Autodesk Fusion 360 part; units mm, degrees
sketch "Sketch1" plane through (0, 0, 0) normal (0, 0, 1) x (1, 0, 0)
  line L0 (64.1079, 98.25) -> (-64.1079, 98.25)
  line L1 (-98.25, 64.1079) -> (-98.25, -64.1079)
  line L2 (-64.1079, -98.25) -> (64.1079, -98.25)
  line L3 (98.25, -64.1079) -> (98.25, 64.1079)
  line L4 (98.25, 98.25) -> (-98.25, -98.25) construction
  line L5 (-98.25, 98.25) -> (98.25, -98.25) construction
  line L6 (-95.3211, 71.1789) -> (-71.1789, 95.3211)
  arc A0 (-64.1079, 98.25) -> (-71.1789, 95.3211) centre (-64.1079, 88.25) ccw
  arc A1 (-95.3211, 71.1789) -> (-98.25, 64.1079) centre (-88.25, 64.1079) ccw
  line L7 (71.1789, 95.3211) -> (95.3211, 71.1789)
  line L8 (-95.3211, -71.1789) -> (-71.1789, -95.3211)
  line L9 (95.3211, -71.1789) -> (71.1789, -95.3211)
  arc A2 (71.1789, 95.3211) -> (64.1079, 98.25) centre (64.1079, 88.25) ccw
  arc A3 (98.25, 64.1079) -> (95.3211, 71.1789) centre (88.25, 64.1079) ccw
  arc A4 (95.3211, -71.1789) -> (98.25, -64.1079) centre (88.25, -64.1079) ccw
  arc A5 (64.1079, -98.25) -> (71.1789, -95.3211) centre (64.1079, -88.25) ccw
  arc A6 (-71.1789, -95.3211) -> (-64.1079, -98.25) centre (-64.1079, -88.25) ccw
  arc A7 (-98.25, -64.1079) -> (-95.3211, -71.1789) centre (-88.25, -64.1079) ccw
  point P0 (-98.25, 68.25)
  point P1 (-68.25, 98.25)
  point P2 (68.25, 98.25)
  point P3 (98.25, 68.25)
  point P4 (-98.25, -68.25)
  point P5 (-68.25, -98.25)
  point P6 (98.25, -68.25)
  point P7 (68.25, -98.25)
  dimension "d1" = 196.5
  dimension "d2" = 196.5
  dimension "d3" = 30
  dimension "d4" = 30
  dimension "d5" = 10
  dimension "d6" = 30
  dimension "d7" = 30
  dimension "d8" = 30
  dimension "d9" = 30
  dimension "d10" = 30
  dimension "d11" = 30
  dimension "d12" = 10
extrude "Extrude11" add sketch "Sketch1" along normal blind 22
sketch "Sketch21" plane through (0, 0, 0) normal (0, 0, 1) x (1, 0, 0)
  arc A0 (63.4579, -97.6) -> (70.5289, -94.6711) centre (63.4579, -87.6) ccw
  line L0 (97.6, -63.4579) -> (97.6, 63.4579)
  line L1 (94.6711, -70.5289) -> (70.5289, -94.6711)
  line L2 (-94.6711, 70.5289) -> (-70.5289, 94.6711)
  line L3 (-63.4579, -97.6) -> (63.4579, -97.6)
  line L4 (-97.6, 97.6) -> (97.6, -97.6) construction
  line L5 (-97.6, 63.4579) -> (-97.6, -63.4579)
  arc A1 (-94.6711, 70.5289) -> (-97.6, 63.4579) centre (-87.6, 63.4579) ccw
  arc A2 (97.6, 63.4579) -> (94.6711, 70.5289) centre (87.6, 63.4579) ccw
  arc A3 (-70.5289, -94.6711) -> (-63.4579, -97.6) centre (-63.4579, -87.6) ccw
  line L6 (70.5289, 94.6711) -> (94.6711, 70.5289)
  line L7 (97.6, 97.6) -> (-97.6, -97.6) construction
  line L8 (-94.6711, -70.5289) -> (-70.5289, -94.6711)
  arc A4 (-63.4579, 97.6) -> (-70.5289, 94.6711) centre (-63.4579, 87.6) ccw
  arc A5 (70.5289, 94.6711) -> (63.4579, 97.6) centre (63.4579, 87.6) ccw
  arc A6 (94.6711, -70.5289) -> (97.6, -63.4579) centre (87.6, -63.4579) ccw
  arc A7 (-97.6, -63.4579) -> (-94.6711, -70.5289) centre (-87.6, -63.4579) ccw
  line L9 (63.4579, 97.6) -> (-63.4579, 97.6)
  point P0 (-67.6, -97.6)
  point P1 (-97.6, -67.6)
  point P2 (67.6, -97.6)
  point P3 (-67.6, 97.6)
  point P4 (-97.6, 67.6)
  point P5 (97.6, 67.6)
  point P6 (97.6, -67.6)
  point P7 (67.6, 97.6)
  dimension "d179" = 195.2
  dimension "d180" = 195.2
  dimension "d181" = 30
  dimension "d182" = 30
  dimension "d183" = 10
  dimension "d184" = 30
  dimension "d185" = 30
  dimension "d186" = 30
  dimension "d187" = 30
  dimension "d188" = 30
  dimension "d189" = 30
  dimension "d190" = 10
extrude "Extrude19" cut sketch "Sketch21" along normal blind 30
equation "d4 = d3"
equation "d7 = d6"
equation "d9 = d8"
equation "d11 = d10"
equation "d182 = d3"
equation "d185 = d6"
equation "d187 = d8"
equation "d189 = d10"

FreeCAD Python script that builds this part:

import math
import FreeCAD as App
import Part
import Sketcher

V = App.Vector

doc = App.newDocument("Part")
body = doc.addObject("PartDesign::Body", "Body")

# Sketch on XY plane
sketch1 = body.newObject("Sketcher::SketchObject", "Sketch")
sketch1.AttachmentSupport = (doc.getObject("XY_Plane"), [""])
sketch1.MapMode = "FlatFace"
sketch1.addGeometry([
    Part.ArcOfCircle(Part.Circle(V(64, 88, 0), V(0, 0, 1), 10), math.radians(45), math.radians(90)),  # 0
    Part.LineSegment(V(64, 98, 0), V(-64, 98, 0)),  # 1
    Part.ArcOfCircle(Part.Circle(V(-64, 88, 0), V(0, 0, 1), 10), math.radians(90), math.radians(135)),  # 2
    Part.LineSegment(V(-71, 95, 0), V(-95, 71, 0)),  # 3
    Part.ArcOfCircle(Part.Circle(V(-88, 64, 0), V(0, 0, 1), 10), math.radians(135), math.radians(180)),  # 4
    Part.LineSegment(V(-98, 64, 0), V(-98, -64, 0)),  # 5
    Part.ArcOfCircle(Part.Circle(V(-88, -64, 0), V(0, 0, 1), 10), math.radians(180), math.radians(225)),  # 6
    Part.LineSegment(V(-95, -71, 0), V(-71, -95, 0)),  # 7
    Part.ArcOfCircle(Part.Circle(V(-64, -88, 0), V(0, 0, 1), 10), math.radians(-135), math.radians(-90)),  # 8
    Part.LineSegment(V(-64, -98, 0), V(64, -98, 0)),  # 9
    Part.ArcOfCircle(Part.Circle(V(64, -88, 0), V(0, 0, 1), 10), math.radians(-90), math.radians(-45)),  # 10
    Part.LineSegment(V(71, -95, 0), V(95, -71, 0)),  # 11
    Part.ArcOfCircle(Part.Circle(V(88, -64, 0), V(0, 0, 1), 10), math.radians(-45), math.radians(0)),  # 12
    Part.LineSegment(V(98, -64, 0), V(98, 64, 0)),  # 13
    Part.ArcOfCircle(Part.Circle(V(88, 64, 0), V(0, 0, 1), 10), math.radians(0), math.radians(45)),  # 14
    Part.LineSegment(V(95, 71, 0), V(71, 95, 0)),  # 15
], False)
sketch1.addConstraint([
    Sketcher.Constraint("Tangent", 0, 2, 1, 1),
    Sketcher.Constraint("Tangent", 1, 2, 2, 1),
    Sketcher.Constraint("Tangent", 2, 2, 3, 1),
    Sketcher.Constraint("Tangent", 3, 2, 4, 1),
    Sketcher.Constraint("Tangent", 4, 2, 5, 1),
    Sketcher.Constraint("Tangent", 5, 2, 6, 1),
    Sketcher.Constraint("Tangent", 6, 2, 7, 1),
    Sketcher.Constraint("Tangent", 7, 2, 8, 1),
    Sketcher.Constraint("Tangent", 8, 2, 9, 1),
    Sketcher.Constraint("Tangent", 9, 2, 10, 1),
    Sketcher.Constraint("Tangent", 10, 2, 11, 1),
    Sketcher.Constraint("Tangent", 11, 2, 12, 1),
    Sketcher.Constraint("Tangent", 12, 2, 13, 1),
    Sketcher.Constraint("Tangent", 13, 2, 14, 1),
    Sketcher.Constraint("Tangent", 14, 2, 15, 1),
    Sketcher.Constraint("Tangent", 15, 2, 0, 1),
    Sketcher.Constraint("Horizontal", 1),
    Sketcher.Constraint("Vertical", 5),
    Sketcher.Constraint("Horizontal", 9),
    Sketcher.Constraint("Vertical", 13),
    Sketcher.Constraint("Equal", 0, 2),
    Sketcher.Constraint("Equal", 2, 4),
    Sketcher.Constraint("Equal", 4, 6),
    Sketcher.Constraint("Equal", 6, 8),
    Sketcher.Constraint("Equal", 8, 10),
    Sketcher.Constraint("Equal", 10, 12),
    Sketcher.Constraint("Equal", 12, 14),
    Sketcher.Constraint("Symmetric", 0, 3, 8, 3, -1, 1),
    Sketcher.Constraint("Symmetric", 4, 3, 12, 3, -1, 1),
    Sketcher.Constraint("Symmetric", 7, 2, 10, 2, -2),
    Sketcher.Constraint("Symmetric", 3, 2, 14, 2, -2),
    Sketcher.Constraint("Perpendicular", 3, 7),
    Sketcher.Constraint("Equal", 9, 5),
    Sketcher.Constraint("Radius", 0, 10.0),
    Sketcher.Constraint("DistanceY", 8, 3, 2, 3, 176.5),
    Sketcher.Constraint("DistanceX", 1, 2, 1, 1, 128.2158),
])
pad1 = body.newObject("PartDesign::Pad", "Pad")
pad1.Profile = sketch1
pad1.Length = 22

# Sketch on XY plane
sketch2 = body.newObject("Sketcher::SketchObject", "Sketch001")
sketch2.AttachmentSupport = (doc.getObject("XY_Plane"), [""])
sketch2.MapMode = "FlatFace"
sketch2.addGeometry([
    Part.LineSegment(V(-63, -98, 0), V(63, -98, 0)),  # 0
    Part.ArcOfCircle(Part.Circle(V(63, -88, 0), V(0, 0, 1), 10), math.radians(-90), math.radians(-45)),  # 1
    Part.LineSegment(V(71, -95, 0), V(95, -71, 0)),  # 2
    Part.ArcOfCircle(Part.Circle(V(88, -63, 0), V(0, 0, 1), 10), math.radians(-45), math.radians(0)),  # 3
    Part.LineSegment(V(98, -63, 0), V(98, 63, 0)),  # 4
    Part.ArcOfCircle(Part.Circle(V(88, 63, 0), V(0, 0, 1), 10), math.radians(0), math.radians(45)),  # 5
    Part.LineSegment(V(95, 71, 0), V(71, 95, 0)),  # 6
    Part.ArcOfCircle(Part.Circle(V(63, 88, 0), V(0, 0, 1), 10), math.radians(45), math.radians(90)),  # 7
    Part.LineSegment(V(63, 98, 0), V(-63, 98, 0)),  # 8
    Part.ArcOfCircle(Part.Circle(V(-63, 88, 0), V(0, 0, 1), 10), math.radians(90), math.radians(135)),  # 9
    Part.LineSegment(V(-71, 95, 0), V(-95, 71, 0)),  # 10
    Part.ArcOfCircle(Part.Circle(V(-88, 63, 0), V(0, 0, 1), 10), math.radians(135), math.radians(180)),  # 11
    Part.LineSegment(V(-98, 63, 0), V(-98, -63, 0)),  # 12
    Part.ArcOfCircle(Part.Circle(V(-88, -63, 0), V(0, 0, 1), 10), math.radians(180), math.radians(225)),  # 13
    Part.LineSegment(V(-95, -71, 0), V(-71, -95, 0)),  # 14
    Part.ArcOfCircle(Part.Circle(V(-63, -88, 0), V(0, 0, 1), 10), math.radians(-135), math.radians(-90)),  # 15
], False)
sketch2.addConstraint([
    Sketcher.Constraint("Tangent", 0, 2, 1, 1),
    Sketcher.Constraint("Tangent", 1, 2, 2, 1),
    Sketcher.Constraint("Tangent", 2, 2, 3, 1),
    Sketcher.Constraint("Tangent", 3, 2, 4, 1),
    Sketcher.Constraint("Tangent", 4, 2, 5, 1),
    Sketcher.Constraint("Tangent", 5, 2, 6, 1),
    Sketcher.Constraint("Tangent", 6, 2, 7, 1),
    Sketcher.Constraint("Tangent", 7, 2, 8, 1),
    Sketcher.Constraint("Tangent", 8, 2, 9, 1),
    Sketcher.Constraint("Tangent", 9, 2, 10, 1),
    Sketcher.Constraint("Tangent", 10, 2, 11, 1),
    Sketcher.Constraint("Tangent", 11, 2, 12, 1),
    Sketcher.Constraint("Tangent", 12, 2, 13, 1),
    Sketcher.Constraint("Tangent", 13, 2, 14, 1),
    Sketcher.Constraint("Tangent", 14, 2, 15, 1),
    Sketcher.Constraint("Tangent", 15, 2, 0, 1),
    Sketcher.Constraint("Horizontal", 0),
    Sketcher.Constraint("Vertical", 4),
    Sketcher.Constraint("Horizontal", 8),
    Sketcher.Constraint("Vertical", 12),
    Sketcher.Constraint("Equal", 1, 3),
    Sketcher.Constraint("Equal", 3, 5),
    Sketcher.Constraint("Equal", 5, 7),
    Sketcher.Constraint("Equal", 7, 9),
    Sketcher.Constraint("Equal", 9, 11),
    Sketcher.Constraint("Equal", 11, 13),
    Sketcher.Constraint("Equal", 13, 15),
    Sketcher.Constraint("Symmetric", 1, 3, 9, 3, -1, 1),
    Sketcher.Constraint("Symmetric", 3, 3, 11, 3, -1, 1),
    Sketcher.Constraint("Symmetric", 5, 2, 13, 2, -1, 1),
    Sketcher.Constraint("Symmetric", 6, 2, 9, 2, -2),
    Sketcher.Constraint("Perpendicular", 2, 6),
    Sketcher.Constraint("Equal", 8, 4),
    Sketcher.Constraint("Radius", 1, 10.0),
    Sketcher.Constraint("DistanceY", 1, 3, -1, 1, 87.6),
    Sketcher.Constraint("DistanceX", 0, 1, 0, 2, 126.9158),
])
pocket1 = body.newObject("PartDesign::Pocket", "Pocket")
pocket1.Profile = sketch2
pocket1.Length = 30
pocket1.Reversed = True

doc.recompute()
